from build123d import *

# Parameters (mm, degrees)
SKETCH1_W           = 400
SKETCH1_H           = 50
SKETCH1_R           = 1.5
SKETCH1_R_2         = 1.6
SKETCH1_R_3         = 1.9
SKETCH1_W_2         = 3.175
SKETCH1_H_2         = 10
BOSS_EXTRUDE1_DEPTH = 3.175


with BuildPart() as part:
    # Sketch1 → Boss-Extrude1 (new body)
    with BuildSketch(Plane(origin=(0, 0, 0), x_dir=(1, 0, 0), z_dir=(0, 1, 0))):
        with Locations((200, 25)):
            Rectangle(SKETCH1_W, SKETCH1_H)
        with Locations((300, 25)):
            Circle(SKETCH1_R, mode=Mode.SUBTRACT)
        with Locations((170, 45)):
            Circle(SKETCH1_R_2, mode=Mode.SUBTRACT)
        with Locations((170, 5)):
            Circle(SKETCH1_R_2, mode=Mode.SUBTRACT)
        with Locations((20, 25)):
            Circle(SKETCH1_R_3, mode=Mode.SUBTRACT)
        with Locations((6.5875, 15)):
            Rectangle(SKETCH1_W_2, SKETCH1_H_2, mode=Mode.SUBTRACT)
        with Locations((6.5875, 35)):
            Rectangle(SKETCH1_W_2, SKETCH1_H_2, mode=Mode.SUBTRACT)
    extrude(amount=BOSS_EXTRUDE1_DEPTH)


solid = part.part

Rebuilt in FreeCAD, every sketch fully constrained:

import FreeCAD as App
import Part
import Sketcher

V = App.Vector

doc = App.newDocument("Part")
body = doc.addObject("PartDesign::Body", "Body")

sketch1 = body.newObject("Sketcher::SketchObject", "Sketch")
sketch1.AttachmentSupport = (doc.getObject("XZ_Plane"), [""])
sketch1.MapMode = "FlatFace"
sketch1.addGeometry([
    Part.LineSegment(V(0, -50, 0), V(0, 0, 0)),
    Part.LineSegment(V(0, 0, 0), V(400, 0, 0)),
    Part.LineSegment(V(400, 0, 0), V(400, -50, 0)),
    Part.LineSegment(V(400, -50, 0), V(0, -50, 0)),
    Part.LineSegment(V(8.175, -10, 0), V(5, -10, 0)),
    Part.LineSegment(V(5, -10, 0), V(5, -20, 0)),
    Part.LineSegment(V(5, -20, 0), V(8.175, -20, 0)),
    Part.LineSegment(V(8.175, -20, 0), V(8.175, -10, 0)),
    Part.Circle(V(170, -5, 0), V(0, 0, 1), 1.6),
    Part.Circle(V(20, -25, 0), V(0, 0, 1), 1.9),
    Part.LineSegment(V(8.175, -30, 0), V(5, -30, 0)),
    Part.LineSegment(V(5, -30, 0), V(5, -40, 0)),
    Part.LineSegment(V(5, -40, 0), V(8.175, -40, 0)),
    Part.LineSegment(V(8.175, -40, 0), V(8.175, -30, 0)),
    Part.Circle(V(300, -25, 0), V(0, 0, 1), 1.5),
    Part.Circle(V(170, -45, 0), V(0, 0, 1), 1.6),
], False)
sketch1.addConstraint([
    Sketcher.Constraint("Coincident", 0, 2, 1, 1),
    Sketcher.Constraint("Coincident", 1, 2, 2, 1),
    Sketcher.Constraint("Coincident", 2, 2, 3, 1),
    Sketcher.Constraint("Coincident", 3, 2, 0, 1),
    Sketcher.Constraint("Coincident", 4, 2, 5, 1),
    Sketcher.Constraint("Coincident", 5, 2, 6, 1),
    Sketcher.Constraint("Coincident", 6, 2, 7, 1),
    Sketcher.Constraint("Coincident", 7, 2, 4, 1),
    Sketcher.Constraint("Coincident", 10, 2, 11, 1),
    Sketcher.Constraint("Coincident", 11, 2, 12, 1),
    Sketcher.Constraint("Coincident", 12, 2, 13, 1),
    Sketcher.Constraint("Coincident", 13, 2, 10, 1),
    Sketcher.Constraint("Vertical", 0),
    Sketcher.Constraint("Horizontal", 1),
    Sketcher.Constraint("Vertical", 2),
    Sketcher.Constraint("Horizontal", 3),
    Sketcher.Constraint("Horizontal", 4),
    Sketcher.Constraint("Vertical", 5),
    Sketcher.Constraint("Horizontal", 6),
    Sketcher.Constraint("Vertical", 7),
    Sketcher.Constraint("Horizontal", 10),
    Sketcher.Constraint("Vertical", 11),
    Sketcher.Constraint("Horizontal", 12),
    Sketcher.Constraint("Vertical", 13),
    Sketcher.Constraint("Coincident", 0, 2, -1, 1),
    Sketcher.Constraint("Equal", 8, 15),
    Sketcher.Constraint("Horizontal", 9, 3, 14, 3),
    Sketcher.Constraint("Vertical", 8, 3, 15, 3),
    Sketcher.Constraint("Vertical", 5, 2, 10, 2),
    Sketcher.Constraint("Vertical", 7, 2, 12, 2),
    Sketcher.Constraint("Equal", 7, 11),
    Sketcher.Constraint("Diameter", 14, 3.0),
    Sketcher.Constraint("Diameter", 8, 3.2),
    Sketcher.Constraint("Diameter", 9, 3.8),
    Sketcher.Constraint("DistanceX", 1, 1, 1, 2, 400.0),
    Sketcher.Constraint("DistanceY", 0, 1, 0, 2, 50.0),
    Sketcher.Constraint("DistanceY", 5, 2, 5, 1, 10.0),
    Sketcher.Constraint("DistanceX", -1, 1, 8, 3, 170.0),
    Sketcher.Constraint("DistanceY", 8, 3, -1, 1, 5.0),
    Sketcher.Constraint("DistanceX", -1, 1, 9, 3, 20.0),
    Sketcher.Constraint("DistanceY", 9, 3, -1, 1, 25.0),
    Sketcher.Constraint("DistanceX", -1, 1, 14, 3, 300.0),
    Sketcher.Constraint("DistanceY", 15, 3, -1, 1, 45.0),
    Sketcher.Constraint("DistanceX", -1, 1, 4, 2, 5.0),
    Sketcher.Constraint("DistanceY", 4, 2, -1, 1, 10.0),
    Sketcher.Constraint("DistanceY", 10, 2, -1, 1, 30.0),
    Sketcher.Constraint("DistanceX", 4, 2, 4, 1, 3.175),
])
pad1 = body.newObject("PartDesign::Pad", "Pad")
pad1.Profile = sketch1
pad1.Length = 3.175
pad1.Reversed = True

doc.recompute()
